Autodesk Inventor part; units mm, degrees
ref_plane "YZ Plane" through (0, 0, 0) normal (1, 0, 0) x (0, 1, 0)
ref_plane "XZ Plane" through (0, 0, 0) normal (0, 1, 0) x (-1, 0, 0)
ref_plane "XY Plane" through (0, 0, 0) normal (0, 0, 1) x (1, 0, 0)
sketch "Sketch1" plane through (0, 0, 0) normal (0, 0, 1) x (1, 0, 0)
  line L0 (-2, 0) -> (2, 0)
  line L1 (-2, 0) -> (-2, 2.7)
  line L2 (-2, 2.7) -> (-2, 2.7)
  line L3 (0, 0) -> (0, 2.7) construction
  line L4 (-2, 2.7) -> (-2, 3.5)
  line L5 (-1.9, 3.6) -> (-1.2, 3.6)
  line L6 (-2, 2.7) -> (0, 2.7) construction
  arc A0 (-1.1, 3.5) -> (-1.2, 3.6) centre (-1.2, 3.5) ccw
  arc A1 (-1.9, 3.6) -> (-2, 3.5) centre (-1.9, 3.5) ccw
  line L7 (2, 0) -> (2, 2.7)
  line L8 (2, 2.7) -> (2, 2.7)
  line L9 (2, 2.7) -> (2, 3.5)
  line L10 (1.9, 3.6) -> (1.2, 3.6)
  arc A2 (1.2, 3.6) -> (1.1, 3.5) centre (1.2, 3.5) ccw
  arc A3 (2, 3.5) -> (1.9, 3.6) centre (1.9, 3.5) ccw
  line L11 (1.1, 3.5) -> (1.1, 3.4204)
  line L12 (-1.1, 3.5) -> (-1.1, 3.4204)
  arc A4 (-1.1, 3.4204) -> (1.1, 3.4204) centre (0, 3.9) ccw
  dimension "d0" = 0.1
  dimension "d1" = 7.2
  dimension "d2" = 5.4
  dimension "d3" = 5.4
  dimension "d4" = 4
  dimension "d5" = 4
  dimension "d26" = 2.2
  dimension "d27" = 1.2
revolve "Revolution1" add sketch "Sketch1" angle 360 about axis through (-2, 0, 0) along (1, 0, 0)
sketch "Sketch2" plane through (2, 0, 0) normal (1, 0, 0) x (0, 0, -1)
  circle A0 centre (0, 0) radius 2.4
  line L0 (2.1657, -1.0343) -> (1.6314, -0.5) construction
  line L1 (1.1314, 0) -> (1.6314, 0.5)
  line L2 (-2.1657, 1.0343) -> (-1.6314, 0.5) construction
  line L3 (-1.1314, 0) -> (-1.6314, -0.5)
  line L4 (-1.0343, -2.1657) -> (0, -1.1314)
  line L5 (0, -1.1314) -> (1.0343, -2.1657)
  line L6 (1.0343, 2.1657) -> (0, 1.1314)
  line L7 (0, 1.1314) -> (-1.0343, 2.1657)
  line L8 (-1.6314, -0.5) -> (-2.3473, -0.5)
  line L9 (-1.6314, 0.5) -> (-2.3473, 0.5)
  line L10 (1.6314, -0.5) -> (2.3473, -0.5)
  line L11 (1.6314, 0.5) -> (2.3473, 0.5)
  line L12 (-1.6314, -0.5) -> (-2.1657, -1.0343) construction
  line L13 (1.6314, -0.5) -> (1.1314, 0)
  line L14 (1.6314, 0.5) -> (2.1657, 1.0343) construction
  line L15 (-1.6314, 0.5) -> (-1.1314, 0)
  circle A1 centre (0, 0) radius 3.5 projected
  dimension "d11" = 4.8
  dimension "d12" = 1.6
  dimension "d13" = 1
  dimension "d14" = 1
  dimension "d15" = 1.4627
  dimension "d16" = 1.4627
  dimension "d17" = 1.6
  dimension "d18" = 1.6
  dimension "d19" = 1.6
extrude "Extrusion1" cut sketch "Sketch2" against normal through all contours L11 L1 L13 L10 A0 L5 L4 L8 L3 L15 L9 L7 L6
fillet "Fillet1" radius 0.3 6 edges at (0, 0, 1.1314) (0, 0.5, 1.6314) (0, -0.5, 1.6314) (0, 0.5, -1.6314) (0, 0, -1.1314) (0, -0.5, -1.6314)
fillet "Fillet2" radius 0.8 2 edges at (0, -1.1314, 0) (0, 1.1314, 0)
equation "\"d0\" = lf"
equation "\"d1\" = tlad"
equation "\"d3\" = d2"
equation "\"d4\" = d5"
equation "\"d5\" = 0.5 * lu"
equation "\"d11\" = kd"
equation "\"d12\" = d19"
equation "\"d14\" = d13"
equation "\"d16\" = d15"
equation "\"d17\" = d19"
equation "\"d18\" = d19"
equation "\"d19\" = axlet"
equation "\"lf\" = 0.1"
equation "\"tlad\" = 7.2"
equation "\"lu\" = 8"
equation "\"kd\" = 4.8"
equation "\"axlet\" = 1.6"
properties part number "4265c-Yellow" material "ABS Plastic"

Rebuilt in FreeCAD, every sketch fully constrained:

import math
import FreeCAD as App
import Part
import Sketcher

V = App.Vector


def edges_at(feature, points):
    """Names of the edges that pass closest to the given points."""
    edges = feature.Shape.Edges
    near = lambda p: min(range(len(edges)), key=lambda i: edges[i].distToShape(Part.Vertex(*p))[0])
    return sorted({f"Edge{near(p) + 1}" for p in points})

doc = App.newDocument("Part")
body = doc.addObject("PartDesign::Body", "Body")

sketch1 = body.newObject("Sketcher::SketchObject", "Sketch")
sketch1.AttachmentSupport = (doc.getObject("XY_Plane"), [""])
sketch1.MapMode = "FlatFace"
sketch1.addGeometry(Part.LineSegment(V(-2, 3.5, 0), V(-2, 0, 0)), False)
sketch1.addGeometry(Part.LineSegment(V(-2, 0, 0), V(2, 0, 0)), False)
sketch1.addGeometry(Part.LineSegment(V(2, 0, 0), V(2, 3.5, 0)), False)
sketch1.addGeometry(Part.ArcOfCircle(Part.Circle(V(1.9, 3.5, 0), V(0, 0, 1), 0.1), math.radians(0), math.radians(90)), False)
sketch1.addGeometry(Part.LineSegment(V(1.9, 3.6, 0), V(1.2, 3.6, 0)), False)
sketch1.addGeometry(Part.ArcOfCircle(Part.Circle(V(1.2, 3.5, 0), V(0, 0, 1), 0.1), math.radians(90), math.radians(180)), False)
sketch1.addGeometry(Part.LineSegment(V(1.1, 3.5, 0), V(1.1, 3.4204, 0)), False)
sketch1.addGeometry(Part.ArcOfCircle(Part.Circle(V(0, 3.9, 0), V(0, 0, 1), 1.200007), math.radians(-156.442798), math.radians(-23.557202)), False)
sketch1.addGeometry(Part.LineSegment(V(-1.1, 3.4204, 0), V(-1.1, 3.5, 0)), False)
sketch1.addGeometry(Part.ArcOfCircle(Part.Circle(V(-1.2, 3.5, 0), V(0, 0, 1), 0.1), math.radians(0), math.radians(90)), False)
sketch1.addGeometry(Part.LineSegment(V(-1.2, 3.6, 0), V(-1.9, 3.6, 0)), False)
sketch1.addGeometry(Part.ArcOfCircle(Part.Circle(V(-1.9, 3.5, 0), V(0, 0, 1), 0.1), math.radians(90), math.radians(180)), False)
sketch1.addConstraint(Sketcher.Constraint("Coincident", 0, 2, 1, 1))
sketch1.addConstraint(Sketcher.Constraint("Coincident", 1, 2, 2, 1))
sketch1.addConstraint(Sketcher.Constraint("Tangent", 2, 2, 3, 1))
sketch1.addConstraint(Sketcher.Constraint("Tangent", 3, 2, 4, 1))
sketch1.addConstraint(Sketcher.Constraint("Tangent", 4, 2, 5, 1))
sketch1.addConstraint(Sketcher.Constraint("Tangent", 5, 2, 6, 1))
sketch1.addConstraint(Sketcher.Constraint("Coincident", 6, 2, 7, 2))
sketch1.addConstraint(Sketcher.Constraint("Coincident", 7, 1, 8, 1))
sketch1.addConstraint(Sketcher.Constraint("Tangent", 8, 2, 9, 1))
sketch1.addConstraint(Sketcher.Constraint("Tangent", 9, 2, 10, 1))
sketch1.addConstraint(Sketcher.Constraint("Tangent", 10, 2, 11, 1))
sketch1.addConstraint(Sketcher.Constraint("Tangent", 11, 2, 0, 1))
sketch1.addConstraint(Sketcher.Constraint("Vertical", 0))
sketch1.addConstraint(Sketcher.Constraint("Horizontal", 1))
sketch1.addConstraint(Sketcher.Constraint("Vertical", 2))
sketch1.addConstraint(Sketcher.Constraint("Horizontal", 4))
sketch1.addConstraint(Sketcher.Constraint("Vertical", 6))
sketch1.addConstraint(Sketcher.Constraint("Vertical", 8))
sketch1.addConstraint(Sketcher.Constraint("Horizontal", 10))
sketch1.addConstraint(Sketcher.Constraint("Equal", 3, 5))
sketch1.addConstraint(Sketcher.Constraint("Equal", 5, 9))
sketch1.addConstraint(Sketcher.Constraint("Equal", 9, 11))
sketch1.addConstraint(Sketcher.Constraint("Symmetric", 0, 2, 1, 2, -1, 1))
sketch1.addConstraint(Sketcher.Constraint("Symmetric", 5, 3, 9, 3, -2))
sketch1.addConstraint(Sketcher.Constraint("PointOnObject", 7, 3, -2))
sketch1.addConstraint(Sketcher.Constraint("Radius", 3, 0.1))
sketch1.addConstraint(Sketcher.Constraint("Radius", 7, 1.2))
sketch1.addConstraint(Sketcher.Constraint("DistanceX", 1, 1, 1, 2, 4.0))
sketch1.addConstraint(Sketcher.Constraint("DistanceX", -1, 1, 5, 3, 1.2))
sketch1.addConstraint(Sketcher.Constraint("DistanceY", 0, 2, 0, 1, 3.5))
sketch1.addConstraint(Sketcher.Constraint("DistanceY", -1, 1, 7, 3, 3.9))
revolution = body.newObject("PartDesign::Revolution", "Revolution")
revolution.Profile = sketch1
revolution.ReferenceAxis = (sketch1, ["H_Axis"])
revolution.Angle = 360

sketch2 = body.newObject("Sketcher::SketchObject", "Sketch001")
sketch2.AttachmentSupport = (doc.getObject("YZ_Plane"), [""])
sketch2.MapMode = "FlatFace"
sketch2.AttachmentOffset = App.Placement(V(0, 0, 2), App.Rotation())
sketch2.addGeometry(Part.LineSegment(V(0.5, -1.6314, 0), V(0.5, -2.3473, 0)), False)
sketch2.addGeometry(Part.ArcOfCircle(Part.Circle(V(0, 0, 0), V(0, 0, 1), 2.4), math.radians(-77.975107), math.radians(-25.528315)), False)
sketch2.addGeometry(Part.LineSegment(V(2.1657, -1.0343, 0), V(1.1314, 0, 0)), False)
sketch2.addGeometry(Part.LineSegment(V(1.1314, 0, 0), V(2.1657, 1.0343, 0)), False)
sketch2.addGeometry(Part.ArcOfCircle(Part.Circle(V(0, 0, 0), V(0, 0, 1), 2.4), math.radians(25.528315), math.radians(77.975107)), False)
sketch2.addGeometry(Part.LineSegment(V(0.5, 2.3473, 0), V(0.5, 1.6314, 0)), False)
sketch2.addGeometry(Part.LineSegment(V(0.5, 1.6314, 0), V(0, 1.1314, 0)), False)
sketch2.addGeometry(Part.LineSegment(V(0, 1.1314, 0), V(-0.5, 1.6314, 0)), False)
sketch2.addGeometry(Part.LineSegment(V(-0.5, 1.6314, 0), V(-0.5, 2.3473, 0)), False)
sketch2.addGeometry(Part.ArcOfCircle(Part.Circle(V(0, 0, 0), V(0, 0, 1), 2.4), math.radians(102.024893), math.radians(154.471685)), False)
sketch2.addGeometry(Part.LineSegment(V(-2.1657, 1.0343, 0), V(-1.1314, 0, 0)), False)
sketch2.addGeometry(Part.LineSegment(V(-1.1314, 0, 0), V(-2.1657, -1.0343, 0)), False)
sketch2.addGeometry(Part.ArcOfCircle(Part.Circle(V(0, 0, 0), V(0, 0, 1), 2.4), math.radians(-154.471685), math.radians(-102.024893)), False)
sketch2.addGeometry(Part.LineSegment(V(-0.5, -2.3473, 0), V(-0.5, -1.6314, 0)), False)
sketch2.addGeometry(Part.LineSegment(V(-0.5, -1.6314, 0), V(0, -1.1314, 0)), False)
sketch2.addGeometry(Part.LineSegment(V(0, -1.1314, 0), V(0.5, -1.6314, 0)), False)
sketch2.addConstraint(Sketcher.Constraint("Coincident", 0, 2, 1, 1))
sketch2.addConstraint(Sketcher.Constraint("Coincident", 1, 2, 2, 1))
sketch2.addConstraint(Sketcher.Constraint("Coincident", 2, 2, 3, 1))
sketch2.addConstraint(Sketcher.Constraint("Coincident", 3, 2, 4, 1))
sketch2.addConstraint(Sketcher.Constraint("Coincident", 4, 2, 5, 1))
sketch2.addConstraint(Sketcher.Constraint("Coincident", 5, 2, 6, 1))
sketch2.addConstraint(Sketcher.Constraint("Coincident", 6, 2, 7, 1))
sketch2.addConstraint(Sketcher.Constraint("Coincident", 7, 2, 8, 1))
sketch2.addConstraint(Sketcher.Constraint("Coincident", 8, 2, 9, 1))
sketch2.addConstraint(Sketcher.Constraint("Coincident", 9, 2, 10, 1))
sketch2.addConstraint(Sketcher.Constraint("Coincident", 10, 2, 11, 1))
sketch2.addConstraint(Sketcher.Constraint("Coincident", 11, 2, 12, 1))
sketch2.addConstraint(Sketcher.Constraint("Coincident", 12, 2, 13, 1))
sketch2.addConstraint(Sketcher.Constraint("Coincident", 13, 2, 14, 1))
sketch2.addConstraint(Sketcher.Constraint("Coincident", 14, 2, 15, 1))
sketch2.addConstraint(Sketcher.Constraint("Coincident", 15, 2, 0, 1))
sketch2.addConstraint(Sketcher.Constraint("Vertical", 0))
sketch2.addConstraint(Sketcher.Constraint("Vertical", 5))
sketch2.addConstraint(Sketcher.Constraint("Vertical", 8))
sketch2.addConstraint(Sketcher.Constraint("Vertical", 13))
sketch2.addConstraint(Sketcher.Constraint("Coincident", 1, 3, -1, 1))
sketch2.addConstraint(Sketcher.Constraint("Coincident", 4, 3, -1, 1))
sketch2.addConstraint(Sketcher.Constraint("Coincident", 9, 3, -1, 1))
sketch2.addConstraint(Sketcher.Constraint("Coincident", 12, 3, -1, 1))
sketch2.addConstraint(Sketcher.Constraint("Equal", 1, 4))
sketch2.addConstraint(Sketcher.Constraint("Equal", 4, 9))
sketch2.addConstraint(Sketcher.Constraint("Equal", 9, 12))
sketch2.addConstraint(Sketcher.Constraint("Symmetric", 2, 2, 10, 2, -1, 1))
sketch2.addConstraint(Sketcher.Constraint("Symmetric", 5, 2, 13, 2, -1, 1))
sketch2.addConstraint(Sketcher.Constraint("Symmetric", 6, 2, 14, 2, -1, 1))
sketch2.addConstraint(Sketcher.Constraint("Symmetric", 7, 2, 15, 2, -1, 1))
sketch2.addConstraint(Sketcher.Constraint("Symmetric", 5, 2, 7, 2, -2))
sketch2.addConstraint(Sketcher.Constraint("PointOnObject", 2, 2, -1))
sketch2.addConstraint(Sketcher.Constraint("PointOnObject", 6, 2, -2))
sketch2.addConstraint(Sketcher.Constraint("Perpendicular", 2, 3))
sketch2.addConstraint(Sketcher.Constraint("Parallel", 3, 6))
sketch2.addConstraint(Sketcher.Constraint("Perpendicular", 6, 7))
sketch2.addConstraint(Sketcher.Constraint("Parallel", 7, 10))
sketch2.addConstraint(Sketcher.Constraint("Perpendicular", 10, 11))
sketch2.addConstraint(Sketcher.Constraint("Radius", 1, 2.4))
sketch2.addConstraint(Sketcher.Constraint("DistanceX", 7, 2, 5, 2, 1.0))
sketch2.addConstraint(Sketcher.Constraint("Distance", 2, 1.4627))
sketch2.addConstraint(Sketcher.Constraint("DistanceY", 0, 2, 0, 1, 0.716))
pocket1 = body.newObject("PartDesign::Pocket", "Pocket")
pocket1.Profile = sketch2
pocket1.Type = "ThroughAll"
doc.recompute()

fillet = body.newObject("PartDesign::Fillet", "Fillet")
fillet.Base = (pocket1, edges_at(pocket1, [
    (0, 0, 1.131),
    (0, 0.5, 1.631),
    (0, -0.5, 1.631),
    (0, 0.5, -1.631),
    (0, 0, -1.131),
    (0, -0.5, -1.631),
]))
fillet.Radius = 0.3
doc.recompute()

fillet2 = body.newObject("PartDesign::Fillet", "Fillet001")
fillet2.Base = (fillet, edges_at(fillet, [(0, -1.131, 0), (0, 1.131, 0)]))
fillet2.Radius = 0.8

doc.recompute()
